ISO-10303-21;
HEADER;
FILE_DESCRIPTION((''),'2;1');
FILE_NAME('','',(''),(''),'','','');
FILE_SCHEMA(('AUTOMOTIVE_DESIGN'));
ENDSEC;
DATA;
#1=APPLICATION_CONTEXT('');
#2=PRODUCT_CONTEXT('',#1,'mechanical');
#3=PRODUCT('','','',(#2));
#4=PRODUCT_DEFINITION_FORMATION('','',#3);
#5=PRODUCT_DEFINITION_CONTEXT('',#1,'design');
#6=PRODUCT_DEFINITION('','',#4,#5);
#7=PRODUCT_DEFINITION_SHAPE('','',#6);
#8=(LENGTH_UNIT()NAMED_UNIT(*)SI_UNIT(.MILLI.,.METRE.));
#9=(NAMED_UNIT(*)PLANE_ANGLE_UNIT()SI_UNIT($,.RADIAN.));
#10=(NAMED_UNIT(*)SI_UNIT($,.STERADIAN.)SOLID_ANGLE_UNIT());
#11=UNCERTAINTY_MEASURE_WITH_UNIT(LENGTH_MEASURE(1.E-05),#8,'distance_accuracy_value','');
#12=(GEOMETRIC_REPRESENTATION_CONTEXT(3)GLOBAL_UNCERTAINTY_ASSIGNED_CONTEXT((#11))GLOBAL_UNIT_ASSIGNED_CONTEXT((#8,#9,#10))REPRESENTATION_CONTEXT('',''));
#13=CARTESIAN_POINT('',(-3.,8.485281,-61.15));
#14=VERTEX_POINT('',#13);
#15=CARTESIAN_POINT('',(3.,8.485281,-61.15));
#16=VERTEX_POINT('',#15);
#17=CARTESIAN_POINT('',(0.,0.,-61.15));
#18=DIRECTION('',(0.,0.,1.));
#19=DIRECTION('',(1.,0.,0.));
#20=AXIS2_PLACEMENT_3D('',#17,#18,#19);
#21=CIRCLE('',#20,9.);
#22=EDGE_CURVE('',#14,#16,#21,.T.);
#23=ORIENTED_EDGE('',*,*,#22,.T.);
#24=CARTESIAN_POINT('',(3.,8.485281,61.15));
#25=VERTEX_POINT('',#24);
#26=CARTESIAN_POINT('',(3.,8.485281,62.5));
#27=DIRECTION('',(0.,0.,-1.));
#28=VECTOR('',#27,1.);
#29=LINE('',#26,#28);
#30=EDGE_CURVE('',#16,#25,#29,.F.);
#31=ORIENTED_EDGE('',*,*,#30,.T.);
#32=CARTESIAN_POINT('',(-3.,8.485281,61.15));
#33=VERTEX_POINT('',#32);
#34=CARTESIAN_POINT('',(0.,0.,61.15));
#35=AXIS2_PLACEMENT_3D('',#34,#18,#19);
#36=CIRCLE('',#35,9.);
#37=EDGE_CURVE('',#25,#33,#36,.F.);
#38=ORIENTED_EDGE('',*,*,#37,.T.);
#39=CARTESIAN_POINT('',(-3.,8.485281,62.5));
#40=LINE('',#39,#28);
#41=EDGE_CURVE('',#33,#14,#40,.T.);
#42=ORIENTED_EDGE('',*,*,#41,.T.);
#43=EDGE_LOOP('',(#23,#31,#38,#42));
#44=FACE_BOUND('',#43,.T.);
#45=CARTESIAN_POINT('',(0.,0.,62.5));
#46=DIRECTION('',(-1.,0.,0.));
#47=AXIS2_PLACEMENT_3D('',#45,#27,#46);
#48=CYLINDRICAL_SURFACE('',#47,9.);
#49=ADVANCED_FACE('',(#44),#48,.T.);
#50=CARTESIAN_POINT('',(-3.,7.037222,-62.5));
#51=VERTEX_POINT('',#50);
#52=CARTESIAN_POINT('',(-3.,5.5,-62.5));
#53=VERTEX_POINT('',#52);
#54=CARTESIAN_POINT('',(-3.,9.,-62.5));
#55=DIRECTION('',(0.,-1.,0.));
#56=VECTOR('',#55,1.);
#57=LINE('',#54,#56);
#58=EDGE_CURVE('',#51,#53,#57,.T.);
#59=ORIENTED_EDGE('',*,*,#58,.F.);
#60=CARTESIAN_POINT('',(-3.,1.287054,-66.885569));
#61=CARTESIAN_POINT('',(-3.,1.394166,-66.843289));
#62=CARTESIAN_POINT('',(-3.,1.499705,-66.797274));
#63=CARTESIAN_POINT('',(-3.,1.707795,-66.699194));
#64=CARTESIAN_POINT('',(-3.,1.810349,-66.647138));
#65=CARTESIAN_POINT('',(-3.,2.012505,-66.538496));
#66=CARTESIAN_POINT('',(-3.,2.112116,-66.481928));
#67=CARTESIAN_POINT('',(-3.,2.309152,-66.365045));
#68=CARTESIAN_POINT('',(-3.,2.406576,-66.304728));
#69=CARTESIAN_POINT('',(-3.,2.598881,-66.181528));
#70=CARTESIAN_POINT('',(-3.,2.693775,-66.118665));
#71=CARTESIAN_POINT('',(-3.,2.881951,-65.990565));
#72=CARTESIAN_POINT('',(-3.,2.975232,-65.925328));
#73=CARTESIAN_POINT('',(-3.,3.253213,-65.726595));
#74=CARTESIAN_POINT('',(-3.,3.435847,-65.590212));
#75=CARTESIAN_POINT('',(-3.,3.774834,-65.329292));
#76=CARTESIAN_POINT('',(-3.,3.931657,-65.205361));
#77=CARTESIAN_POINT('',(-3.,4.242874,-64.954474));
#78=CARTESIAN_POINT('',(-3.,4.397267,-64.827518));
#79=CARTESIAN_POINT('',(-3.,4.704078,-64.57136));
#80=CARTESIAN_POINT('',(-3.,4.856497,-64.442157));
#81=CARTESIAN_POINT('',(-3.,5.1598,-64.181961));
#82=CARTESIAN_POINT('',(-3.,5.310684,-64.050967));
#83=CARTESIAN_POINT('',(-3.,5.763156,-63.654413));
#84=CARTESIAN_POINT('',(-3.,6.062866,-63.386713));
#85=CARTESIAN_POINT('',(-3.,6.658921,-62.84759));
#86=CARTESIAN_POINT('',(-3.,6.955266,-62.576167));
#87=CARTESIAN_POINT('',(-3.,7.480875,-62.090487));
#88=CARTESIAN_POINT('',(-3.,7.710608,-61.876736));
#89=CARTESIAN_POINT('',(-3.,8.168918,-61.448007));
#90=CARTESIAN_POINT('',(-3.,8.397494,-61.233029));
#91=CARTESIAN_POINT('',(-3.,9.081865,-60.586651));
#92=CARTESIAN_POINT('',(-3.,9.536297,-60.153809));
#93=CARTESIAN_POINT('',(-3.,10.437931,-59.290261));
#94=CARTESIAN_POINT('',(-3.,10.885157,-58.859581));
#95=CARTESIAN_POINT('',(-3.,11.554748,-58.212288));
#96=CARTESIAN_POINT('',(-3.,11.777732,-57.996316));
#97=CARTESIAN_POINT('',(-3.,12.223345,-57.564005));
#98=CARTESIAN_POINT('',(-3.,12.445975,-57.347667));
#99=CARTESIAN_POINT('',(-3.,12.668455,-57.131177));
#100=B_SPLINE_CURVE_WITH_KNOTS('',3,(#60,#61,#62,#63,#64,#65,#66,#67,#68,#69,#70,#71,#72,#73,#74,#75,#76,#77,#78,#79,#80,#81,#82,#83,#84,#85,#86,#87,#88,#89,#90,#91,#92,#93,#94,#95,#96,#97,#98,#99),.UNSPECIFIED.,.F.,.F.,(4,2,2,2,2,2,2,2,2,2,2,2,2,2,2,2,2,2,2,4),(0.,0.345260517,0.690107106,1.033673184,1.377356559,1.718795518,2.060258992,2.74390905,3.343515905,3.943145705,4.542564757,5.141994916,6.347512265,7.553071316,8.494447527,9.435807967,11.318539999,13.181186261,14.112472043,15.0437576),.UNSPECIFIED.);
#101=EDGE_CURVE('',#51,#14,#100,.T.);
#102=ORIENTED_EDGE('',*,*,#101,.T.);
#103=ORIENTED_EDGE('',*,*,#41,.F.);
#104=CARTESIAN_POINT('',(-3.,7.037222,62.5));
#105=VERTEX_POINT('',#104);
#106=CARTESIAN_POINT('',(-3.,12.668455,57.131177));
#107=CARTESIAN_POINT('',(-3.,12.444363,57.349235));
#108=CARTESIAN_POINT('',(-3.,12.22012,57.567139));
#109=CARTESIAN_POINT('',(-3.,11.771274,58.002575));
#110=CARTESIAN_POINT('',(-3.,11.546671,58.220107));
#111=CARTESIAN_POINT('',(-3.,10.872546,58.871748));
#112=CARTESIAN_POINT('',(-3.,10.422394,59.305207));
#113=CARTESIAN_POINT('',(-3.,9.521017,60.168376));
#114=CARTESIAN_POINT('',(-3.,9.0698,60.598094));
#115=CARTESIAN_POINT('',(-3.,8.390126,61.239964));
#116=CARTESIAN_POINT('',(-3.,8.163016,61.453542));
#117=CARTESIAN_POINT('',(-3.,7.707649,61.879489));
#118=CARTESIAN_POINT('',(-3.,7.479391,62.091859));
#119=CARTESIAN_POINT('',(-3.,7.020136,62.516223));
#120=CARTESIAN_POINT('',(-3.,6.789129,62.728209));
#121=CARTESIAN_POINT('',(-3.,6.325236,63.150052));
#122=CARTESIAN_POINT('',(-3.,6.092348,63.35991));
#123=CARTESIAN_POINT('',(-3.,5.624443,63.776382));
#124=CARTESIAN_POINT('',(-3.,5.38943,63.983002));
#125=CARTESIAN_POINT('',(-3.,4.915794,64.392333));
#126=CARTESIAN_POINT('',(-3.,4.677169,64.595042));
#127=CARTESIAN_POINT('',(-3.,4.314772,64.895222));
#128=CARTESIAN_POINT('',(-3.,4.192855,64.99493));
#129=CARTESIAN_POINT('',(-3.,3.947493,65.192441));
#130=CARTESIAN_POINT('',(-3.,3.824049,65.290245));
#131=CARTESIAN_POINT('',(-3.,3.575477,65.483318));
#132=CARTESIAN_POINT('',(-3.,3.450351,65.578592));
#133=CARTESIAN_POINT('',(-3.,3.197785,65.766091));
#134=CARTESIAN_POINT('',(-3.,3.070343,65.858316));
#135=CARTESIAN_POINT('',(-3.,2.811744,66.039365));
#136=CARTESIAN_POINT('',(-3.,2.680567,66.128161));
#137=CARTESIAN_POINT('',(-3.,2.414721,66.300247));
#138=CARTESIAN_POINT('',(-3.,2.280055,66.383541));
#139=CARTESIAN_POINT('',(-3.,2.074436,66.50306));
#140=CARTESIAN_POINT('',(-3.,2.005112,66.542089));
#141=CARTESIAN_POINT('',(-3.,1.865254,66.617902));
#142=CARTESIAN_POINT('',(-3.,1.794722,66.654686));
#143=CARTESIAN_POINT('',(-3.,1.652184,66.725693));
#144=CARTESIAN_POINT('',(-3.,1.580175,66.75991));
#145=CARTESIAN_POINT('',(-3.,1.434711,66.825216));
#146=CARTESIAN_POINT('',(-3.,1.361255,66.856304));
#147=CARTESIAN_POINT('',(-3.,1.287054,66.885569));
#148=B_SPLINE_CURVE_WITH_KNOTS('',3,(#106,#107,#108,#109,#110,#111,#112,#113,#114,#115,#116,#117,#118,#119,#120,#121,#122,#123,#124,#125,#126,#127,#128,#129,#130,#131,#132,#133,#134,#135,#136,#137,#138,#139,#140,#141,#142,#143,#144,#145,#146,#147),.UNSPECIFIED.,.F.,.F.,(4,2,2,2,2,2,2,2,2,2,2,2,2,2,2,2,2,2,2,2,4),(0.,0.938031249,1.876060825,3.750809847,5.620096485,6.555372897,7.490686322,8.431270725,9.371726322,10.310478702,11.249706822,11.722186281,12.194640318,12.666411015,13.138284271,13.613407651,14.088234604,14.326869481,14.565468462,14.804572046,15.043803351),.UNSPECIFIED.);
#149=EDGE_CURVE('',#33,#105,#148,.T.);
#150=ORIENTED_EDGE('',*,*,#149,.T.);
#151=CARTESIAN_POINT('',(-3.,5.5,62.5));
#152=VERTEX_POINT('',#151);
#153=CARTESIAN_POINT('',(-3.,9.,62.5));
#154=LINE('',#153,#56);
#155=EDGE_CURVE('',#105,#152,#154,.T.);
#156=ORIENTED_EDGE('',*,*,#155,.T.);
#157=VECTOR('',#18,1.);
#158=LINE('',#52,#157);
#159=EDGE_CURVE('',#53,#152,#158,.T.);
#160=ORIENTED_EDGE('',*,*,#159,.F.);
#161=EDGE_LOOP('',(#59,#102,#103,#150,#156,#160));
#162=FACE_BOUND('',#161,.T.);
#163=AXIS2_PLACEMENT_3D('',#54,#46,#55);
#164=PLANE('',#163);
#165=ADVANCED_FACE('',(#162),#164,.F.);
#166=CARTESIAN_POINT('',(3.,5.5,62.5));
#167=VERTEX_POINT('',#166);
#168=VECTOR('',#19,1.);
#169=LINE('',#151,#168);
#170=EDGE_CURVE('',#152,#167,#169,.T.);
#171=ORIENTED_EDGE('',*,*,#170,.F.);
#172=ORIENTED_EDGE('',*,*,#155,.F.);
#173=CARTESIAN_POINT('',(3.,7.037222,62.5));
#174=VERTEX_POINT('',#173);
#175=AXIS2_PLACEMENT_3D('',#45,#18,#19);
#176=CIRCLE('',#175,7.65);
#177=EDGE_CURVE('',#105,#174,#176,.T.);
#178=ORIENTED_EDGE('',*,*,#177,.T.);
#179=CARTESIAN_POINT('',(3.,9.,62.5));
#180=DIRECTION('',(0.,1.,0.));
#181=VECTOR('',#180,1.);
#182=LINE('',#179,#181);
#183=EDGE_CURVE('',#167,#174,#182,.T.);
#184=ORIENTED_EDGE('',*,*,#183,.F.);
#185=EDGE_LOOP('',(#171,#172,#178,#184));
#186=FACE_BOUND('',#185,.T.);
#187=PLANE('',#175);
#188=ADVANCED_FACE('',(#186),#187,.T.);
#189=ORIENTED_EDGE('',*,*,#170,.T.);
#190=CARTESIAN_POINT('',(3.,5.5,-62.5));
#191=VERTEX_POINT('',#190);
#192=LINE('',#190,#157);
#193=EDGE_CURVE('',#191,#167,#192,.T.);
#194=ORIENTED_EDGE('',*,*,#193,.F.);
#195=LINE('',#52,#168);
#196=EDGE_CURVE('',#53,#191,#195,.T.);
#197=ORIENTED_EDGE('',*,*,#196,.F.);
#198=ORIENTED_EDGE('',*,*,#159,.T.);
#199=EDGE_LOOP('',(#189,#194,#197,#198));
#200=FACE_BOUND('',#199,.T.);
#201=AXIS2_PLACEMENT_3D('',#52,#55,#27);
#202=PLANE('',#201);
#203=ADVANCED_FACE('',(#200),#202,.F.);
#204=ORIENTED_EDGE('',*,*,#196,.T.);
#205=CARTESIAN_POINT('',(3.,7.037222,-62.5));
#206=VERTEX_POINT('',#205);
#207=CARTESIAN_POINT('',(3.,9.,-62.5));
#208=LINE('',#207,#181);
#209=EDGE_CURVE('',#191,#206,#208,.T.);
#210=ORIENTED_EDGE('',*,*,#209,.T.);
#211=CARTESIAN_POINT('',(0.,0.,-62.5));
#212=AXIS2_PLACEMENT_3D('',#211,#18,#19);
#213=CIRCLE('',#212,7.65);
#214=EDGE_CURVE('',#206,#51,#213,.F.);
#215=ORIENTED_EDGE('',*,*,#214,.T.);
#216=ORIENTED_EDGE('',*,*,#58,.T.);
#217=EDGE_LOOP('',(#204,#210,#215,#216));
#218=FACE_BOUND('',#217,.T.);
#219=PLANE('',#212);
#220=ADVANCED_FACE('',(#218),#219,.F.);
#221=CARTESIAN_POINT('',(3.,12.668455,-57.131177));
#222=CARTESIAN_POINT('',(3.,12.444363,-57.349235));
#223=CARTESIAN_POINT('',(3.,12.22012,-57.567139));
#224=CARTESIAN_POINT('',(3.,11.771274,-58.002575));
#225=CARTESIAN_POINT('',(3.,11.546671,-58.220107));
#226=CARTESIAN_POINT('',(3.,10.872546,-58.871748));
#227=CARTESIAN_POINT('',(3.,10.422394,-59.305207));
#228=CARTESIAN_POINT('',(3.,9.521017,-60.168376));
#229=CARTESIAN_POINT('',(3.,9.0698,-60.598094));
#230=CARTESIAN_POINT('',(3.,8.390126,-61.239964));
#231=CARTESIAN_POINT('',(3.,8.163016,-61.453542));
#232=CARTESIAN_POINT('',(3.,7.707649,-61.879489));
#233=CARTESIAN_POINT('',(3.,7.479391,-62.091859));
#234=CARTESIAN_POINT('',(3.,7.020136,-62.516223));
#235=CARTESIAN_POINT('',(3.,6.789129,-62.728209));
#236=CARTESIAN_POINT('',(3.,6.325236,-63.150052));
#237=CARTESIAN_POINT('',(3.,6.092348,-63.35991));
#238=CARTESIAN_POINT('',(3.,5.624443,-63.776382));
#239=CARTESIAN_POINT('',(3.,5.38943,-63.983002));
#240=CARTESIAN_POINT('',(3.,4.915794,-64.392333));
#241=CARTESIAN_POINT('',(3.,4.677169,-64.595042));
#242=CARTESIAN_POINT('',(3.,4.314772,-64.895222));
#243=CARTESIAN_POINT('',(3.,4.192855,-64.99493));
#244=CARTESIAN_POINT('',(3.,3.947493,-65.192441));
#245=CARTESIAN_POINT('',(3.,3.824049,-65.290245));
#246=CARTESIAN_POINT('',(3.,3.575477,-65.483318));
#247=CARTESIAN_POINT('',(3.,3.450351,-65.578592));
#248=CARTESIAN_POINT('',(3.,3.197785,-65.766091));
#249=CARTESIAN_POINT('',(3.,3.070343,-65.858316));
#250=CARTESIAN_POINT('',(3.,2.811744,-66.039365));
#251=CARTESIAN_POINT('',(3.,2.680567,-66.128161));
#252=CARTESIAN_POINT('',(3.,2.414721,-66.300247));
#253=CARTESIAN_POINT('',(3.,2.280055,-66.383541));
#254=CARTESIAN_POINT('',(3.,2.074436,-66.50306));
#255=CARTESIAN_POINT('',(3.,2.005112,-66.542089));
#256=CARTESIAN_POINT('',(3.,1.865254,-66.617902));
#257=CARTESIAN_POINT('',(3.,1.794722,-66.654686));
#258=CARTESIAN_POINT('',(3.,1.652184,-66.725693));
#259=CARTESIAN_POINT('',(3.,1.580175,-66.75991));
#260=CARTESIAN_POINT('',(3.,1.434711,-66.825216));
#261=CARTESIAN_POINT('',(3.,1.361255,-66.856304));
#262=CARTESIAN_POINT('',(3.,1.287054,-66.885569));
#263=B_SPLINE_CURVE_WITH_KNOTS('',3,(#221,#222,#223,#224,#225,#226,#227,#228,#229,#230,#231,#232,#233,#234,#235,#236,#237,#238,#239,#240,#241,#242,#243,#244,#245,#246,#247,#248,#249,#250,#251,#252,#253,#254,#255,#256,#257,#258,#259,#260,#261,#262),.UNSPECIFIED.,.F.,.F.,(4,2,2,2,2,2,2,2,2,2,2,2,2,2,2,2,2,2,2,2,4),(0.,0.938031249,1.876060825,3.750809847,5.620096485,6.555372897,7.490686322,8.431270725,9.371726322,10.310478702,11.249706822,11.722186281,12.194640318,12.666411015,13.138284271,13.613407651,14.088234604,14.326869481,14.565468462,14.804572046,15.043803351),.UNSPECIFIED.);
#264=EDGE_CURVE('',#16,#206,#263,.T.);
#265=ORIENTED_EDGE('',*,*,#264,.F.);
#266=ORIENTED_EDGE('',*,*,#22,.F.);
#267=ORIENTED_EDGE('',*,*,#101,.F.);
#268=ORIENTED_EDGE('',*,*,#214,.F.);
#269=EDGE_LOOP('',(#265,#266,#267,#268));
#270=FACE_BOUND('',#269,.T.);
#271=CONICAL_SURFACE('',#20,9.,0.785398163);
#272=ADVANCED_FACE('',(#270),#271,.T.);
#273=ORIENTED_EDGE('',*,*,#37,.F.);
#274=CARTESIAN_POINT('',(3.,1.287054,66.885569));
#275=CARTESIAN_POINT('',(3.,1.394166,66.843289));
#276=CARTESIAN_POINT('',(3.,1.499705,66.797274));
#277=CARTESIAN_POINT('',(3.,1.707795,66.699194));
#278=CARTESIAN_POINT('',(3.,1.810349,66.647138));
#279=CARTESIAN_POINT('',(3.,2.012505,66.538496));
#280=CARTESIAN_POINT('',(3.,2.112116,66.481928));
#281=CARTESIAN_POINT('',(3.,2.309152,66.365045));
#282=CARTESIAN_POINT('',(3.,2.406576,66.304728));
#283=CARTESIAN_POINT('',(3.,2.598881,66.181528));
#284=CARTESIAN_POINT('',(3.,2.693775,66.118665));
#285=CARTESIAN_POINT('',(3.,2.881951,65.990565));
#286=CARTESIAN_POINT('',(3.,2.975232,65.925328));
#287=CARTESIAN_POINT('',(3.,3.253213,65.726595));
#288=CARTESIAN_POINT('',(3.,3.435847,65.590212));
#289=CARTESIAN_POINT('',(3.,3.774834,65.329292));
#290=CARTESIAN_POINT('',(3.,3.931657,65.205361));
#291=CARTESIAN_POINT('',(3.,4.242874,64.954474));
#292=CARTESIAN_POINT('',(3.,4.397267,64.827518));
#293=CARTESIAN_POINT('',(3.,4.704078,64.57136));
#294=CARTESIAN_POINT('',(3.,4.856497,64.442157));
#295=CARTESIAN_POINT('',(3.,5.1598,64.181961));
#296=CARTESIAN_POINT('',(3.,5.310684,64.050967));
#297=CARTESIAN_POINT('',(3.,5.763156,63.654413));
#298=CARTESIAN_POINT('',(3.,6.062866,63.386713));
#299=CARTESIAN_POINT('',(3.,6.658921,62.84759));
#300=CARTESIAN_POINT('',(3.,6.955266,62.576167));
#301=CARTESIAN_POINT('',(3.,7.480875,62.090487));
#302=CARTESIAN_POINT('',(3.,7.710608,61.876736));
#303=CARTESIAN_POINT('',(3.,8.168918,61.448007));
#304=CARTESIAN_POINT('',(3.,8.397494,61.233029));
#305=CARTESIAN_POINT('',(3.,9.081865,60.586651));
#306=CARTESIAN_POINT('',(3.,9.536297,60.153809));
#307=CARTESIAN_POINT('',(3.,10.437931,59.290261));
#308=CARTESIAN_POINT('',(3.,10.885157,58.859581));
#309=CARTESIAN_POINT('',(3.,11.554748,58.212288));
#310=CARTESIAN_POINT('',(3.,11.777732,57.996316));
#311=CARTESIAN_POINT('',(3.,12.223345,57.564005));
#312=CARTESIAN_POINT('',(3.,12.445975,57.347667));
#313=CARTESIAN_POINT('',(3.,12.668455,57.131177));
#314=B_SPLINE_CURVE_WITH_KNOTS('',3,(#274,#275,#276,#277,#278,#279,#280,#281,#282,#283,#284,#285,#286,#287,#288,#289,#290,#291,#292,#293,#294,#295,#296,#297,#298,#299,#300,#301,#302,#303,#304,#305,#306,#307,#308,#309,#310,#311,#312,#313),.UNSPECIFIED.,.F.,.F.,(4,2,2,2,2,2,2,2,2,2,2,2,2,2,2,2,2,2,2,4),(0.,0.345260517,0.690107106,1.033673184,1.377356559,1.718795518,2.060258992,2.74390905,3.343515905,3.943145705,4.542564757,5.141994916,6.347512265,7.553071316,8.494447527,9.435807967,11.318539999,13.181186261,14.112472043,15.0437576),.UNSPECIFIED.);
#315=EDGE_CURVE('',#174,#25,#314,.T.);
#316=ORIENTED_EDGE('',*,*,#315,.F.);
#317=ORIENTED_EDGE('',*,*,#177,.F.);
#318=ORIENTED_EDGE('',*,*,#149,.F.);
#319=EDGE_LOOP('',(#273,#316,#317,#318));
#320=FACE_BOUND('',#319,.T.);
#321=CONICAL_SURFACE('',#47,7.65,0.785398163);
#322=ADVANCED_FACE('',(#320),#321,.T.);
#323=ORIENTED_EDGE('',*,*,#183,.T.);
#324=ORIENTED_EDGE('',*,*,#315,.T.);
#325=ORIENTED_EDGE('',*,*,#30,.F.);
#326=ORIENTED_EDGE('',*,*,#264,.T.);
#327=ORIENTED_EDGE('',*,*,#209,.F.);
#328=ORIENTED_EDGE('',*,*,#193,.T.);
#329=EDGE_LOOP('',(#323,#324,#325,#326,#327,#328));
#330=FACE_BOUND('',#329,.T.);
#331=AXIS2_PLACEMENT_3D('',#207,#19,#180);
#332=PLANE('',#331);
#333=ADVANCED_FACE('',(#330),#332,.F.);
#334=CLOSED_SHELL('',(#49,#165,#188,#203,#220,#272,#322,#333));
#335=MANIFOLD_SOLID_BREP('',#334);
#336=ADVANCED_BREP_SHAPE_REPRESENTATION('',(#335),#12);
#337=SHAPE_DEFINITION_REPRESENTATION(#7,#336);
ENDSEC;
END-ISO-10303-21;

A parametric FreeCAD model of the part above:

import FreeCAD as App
import Part
import Sketcher
from FreeCAD import Vector


def edges_at(feature, points):
    """Names of the edges that pass closest to the given points."""
    edges = feature.Shape.Edges
    near = lambda p: min(range(len(edges)), key=lambda i: edges[i].distToShape(Part.Vertex(*p))[0])
    return sorted({f"Edge{near(p) + 1}" for p in points})


def add_polygon(sketch, points):
    """Adds a closed chain of lines whose ends are joined by coincident constraints."""
    first, n = sketch.GeometryCount, len(points)
    for a, b in zip(points, points[1:] + points[:1]):
        sketch.addGeometry(Part.LineSegment(App.Vector(*a, 0), App.Vector(*b, 0)), False)
    for i in range(n):
        sketch.addConstraint(Sketcher.Constraint("Coincident", first + i, 2, first + (i + 1) % n, 1))

doc = App.newDocument("Part")
params = doc.addObject("Spreadsheet::Sheet", "Params")
for row, (alias, value) in enumerate([
    ("sketch1_diameter", "18 mm"),
    ("pad1_length", "125 mm"),
    ("chamfer_size", "1.35 mm"),
    ("sketch2_width", "6 mm"),
    ("sketch2_height", "3.5 mm"),
], start=1):
    params.set(f"A{row}", alias)
    params.set(f"B{row}", "=" + value)
    params.setAlias(f"B{row}", alias)

body = doc.addObject("PartDesign::Body", "Body")

sketch1 = body.newObject("Sketcher::SketchObject", "Sketch")
sketch1.AttachmentSupport = (doc.getObject("XY_Plane"), [""])
sketch1.MapMode = "FlatFace"
sketch1.addGeometry(Part.Circle(Vector(0, 0, 0), Vector(0, 0, 1), 9), False)
sketch1.addConstraint([
    Sketcher.Constraint("Coincident", 0, 3, -1, 1),
    Sketcher.Constraint("Diameter", 0, 18.0),
])
sketch1.setExpression("Constraints[1]", "Params.sketch1_diameter")
pad1 = body.newObject("PartDesign::Pad", "Pad")
pad1.Profile = sketch1
pad1.setExpression("Length", "Params.pad1_length")
pad1.Midplane = True
doc.recompute()

chamfer = body.newObject("PartDesign::Chamfer", "Chamfer")
chamfer.Base = (pad1, edges_at(pad1, [(-9, 0, -62.5), (-9, 0, 62.5)]))
chamfer.setExpression("Size", "Params.chamfer_size")

sketch2 = body.newObject("Sketcher::SketchObject", "Sketch001")
sketch2.AttachmentSupport = (doc.getObject("XY_Plane"), [""])
sketch2.MapMode = "FlatFace"
add_polygon(sketch2, [(-3, 9), (-3, 5.5), (3, 5.5), (3, 9)])
sketch2.addConstraint([
    Sketcher.Constraint("Vertical", 0),
    Sketcher.Constraint("Horizontal", 1),
    Sketcher.Constraint("Vertical", 2),
    Sketcher.Constraint("Horizontal", 3),
    Sketcher.Constraint("DistanceX", 1, 1, 1, 2, 6.0),
    Sketcher.Constraint("DistanceY", 0, 2, 0, 1, 3.5),
    Sketcher.Constraint("DistanceX", 0, 2, -1, 1, 3.0),
    Sketcher.Constraint("DistanceY", -1, 1, 2, 2, 9.0),
])
sketch2.setExpression("Constraints[8]", "Params.sketch2_width")
sketch2.setExpression("Constraints[9]", "Params.sketch2_height")
pocket1 = body.newObject("PartDesign::Pocket", "Pocket")
pocket1.Profile = sketch2
pocket1.Type = "ThroughAll"
pocket1.Midplane = True

doc.recompute()
